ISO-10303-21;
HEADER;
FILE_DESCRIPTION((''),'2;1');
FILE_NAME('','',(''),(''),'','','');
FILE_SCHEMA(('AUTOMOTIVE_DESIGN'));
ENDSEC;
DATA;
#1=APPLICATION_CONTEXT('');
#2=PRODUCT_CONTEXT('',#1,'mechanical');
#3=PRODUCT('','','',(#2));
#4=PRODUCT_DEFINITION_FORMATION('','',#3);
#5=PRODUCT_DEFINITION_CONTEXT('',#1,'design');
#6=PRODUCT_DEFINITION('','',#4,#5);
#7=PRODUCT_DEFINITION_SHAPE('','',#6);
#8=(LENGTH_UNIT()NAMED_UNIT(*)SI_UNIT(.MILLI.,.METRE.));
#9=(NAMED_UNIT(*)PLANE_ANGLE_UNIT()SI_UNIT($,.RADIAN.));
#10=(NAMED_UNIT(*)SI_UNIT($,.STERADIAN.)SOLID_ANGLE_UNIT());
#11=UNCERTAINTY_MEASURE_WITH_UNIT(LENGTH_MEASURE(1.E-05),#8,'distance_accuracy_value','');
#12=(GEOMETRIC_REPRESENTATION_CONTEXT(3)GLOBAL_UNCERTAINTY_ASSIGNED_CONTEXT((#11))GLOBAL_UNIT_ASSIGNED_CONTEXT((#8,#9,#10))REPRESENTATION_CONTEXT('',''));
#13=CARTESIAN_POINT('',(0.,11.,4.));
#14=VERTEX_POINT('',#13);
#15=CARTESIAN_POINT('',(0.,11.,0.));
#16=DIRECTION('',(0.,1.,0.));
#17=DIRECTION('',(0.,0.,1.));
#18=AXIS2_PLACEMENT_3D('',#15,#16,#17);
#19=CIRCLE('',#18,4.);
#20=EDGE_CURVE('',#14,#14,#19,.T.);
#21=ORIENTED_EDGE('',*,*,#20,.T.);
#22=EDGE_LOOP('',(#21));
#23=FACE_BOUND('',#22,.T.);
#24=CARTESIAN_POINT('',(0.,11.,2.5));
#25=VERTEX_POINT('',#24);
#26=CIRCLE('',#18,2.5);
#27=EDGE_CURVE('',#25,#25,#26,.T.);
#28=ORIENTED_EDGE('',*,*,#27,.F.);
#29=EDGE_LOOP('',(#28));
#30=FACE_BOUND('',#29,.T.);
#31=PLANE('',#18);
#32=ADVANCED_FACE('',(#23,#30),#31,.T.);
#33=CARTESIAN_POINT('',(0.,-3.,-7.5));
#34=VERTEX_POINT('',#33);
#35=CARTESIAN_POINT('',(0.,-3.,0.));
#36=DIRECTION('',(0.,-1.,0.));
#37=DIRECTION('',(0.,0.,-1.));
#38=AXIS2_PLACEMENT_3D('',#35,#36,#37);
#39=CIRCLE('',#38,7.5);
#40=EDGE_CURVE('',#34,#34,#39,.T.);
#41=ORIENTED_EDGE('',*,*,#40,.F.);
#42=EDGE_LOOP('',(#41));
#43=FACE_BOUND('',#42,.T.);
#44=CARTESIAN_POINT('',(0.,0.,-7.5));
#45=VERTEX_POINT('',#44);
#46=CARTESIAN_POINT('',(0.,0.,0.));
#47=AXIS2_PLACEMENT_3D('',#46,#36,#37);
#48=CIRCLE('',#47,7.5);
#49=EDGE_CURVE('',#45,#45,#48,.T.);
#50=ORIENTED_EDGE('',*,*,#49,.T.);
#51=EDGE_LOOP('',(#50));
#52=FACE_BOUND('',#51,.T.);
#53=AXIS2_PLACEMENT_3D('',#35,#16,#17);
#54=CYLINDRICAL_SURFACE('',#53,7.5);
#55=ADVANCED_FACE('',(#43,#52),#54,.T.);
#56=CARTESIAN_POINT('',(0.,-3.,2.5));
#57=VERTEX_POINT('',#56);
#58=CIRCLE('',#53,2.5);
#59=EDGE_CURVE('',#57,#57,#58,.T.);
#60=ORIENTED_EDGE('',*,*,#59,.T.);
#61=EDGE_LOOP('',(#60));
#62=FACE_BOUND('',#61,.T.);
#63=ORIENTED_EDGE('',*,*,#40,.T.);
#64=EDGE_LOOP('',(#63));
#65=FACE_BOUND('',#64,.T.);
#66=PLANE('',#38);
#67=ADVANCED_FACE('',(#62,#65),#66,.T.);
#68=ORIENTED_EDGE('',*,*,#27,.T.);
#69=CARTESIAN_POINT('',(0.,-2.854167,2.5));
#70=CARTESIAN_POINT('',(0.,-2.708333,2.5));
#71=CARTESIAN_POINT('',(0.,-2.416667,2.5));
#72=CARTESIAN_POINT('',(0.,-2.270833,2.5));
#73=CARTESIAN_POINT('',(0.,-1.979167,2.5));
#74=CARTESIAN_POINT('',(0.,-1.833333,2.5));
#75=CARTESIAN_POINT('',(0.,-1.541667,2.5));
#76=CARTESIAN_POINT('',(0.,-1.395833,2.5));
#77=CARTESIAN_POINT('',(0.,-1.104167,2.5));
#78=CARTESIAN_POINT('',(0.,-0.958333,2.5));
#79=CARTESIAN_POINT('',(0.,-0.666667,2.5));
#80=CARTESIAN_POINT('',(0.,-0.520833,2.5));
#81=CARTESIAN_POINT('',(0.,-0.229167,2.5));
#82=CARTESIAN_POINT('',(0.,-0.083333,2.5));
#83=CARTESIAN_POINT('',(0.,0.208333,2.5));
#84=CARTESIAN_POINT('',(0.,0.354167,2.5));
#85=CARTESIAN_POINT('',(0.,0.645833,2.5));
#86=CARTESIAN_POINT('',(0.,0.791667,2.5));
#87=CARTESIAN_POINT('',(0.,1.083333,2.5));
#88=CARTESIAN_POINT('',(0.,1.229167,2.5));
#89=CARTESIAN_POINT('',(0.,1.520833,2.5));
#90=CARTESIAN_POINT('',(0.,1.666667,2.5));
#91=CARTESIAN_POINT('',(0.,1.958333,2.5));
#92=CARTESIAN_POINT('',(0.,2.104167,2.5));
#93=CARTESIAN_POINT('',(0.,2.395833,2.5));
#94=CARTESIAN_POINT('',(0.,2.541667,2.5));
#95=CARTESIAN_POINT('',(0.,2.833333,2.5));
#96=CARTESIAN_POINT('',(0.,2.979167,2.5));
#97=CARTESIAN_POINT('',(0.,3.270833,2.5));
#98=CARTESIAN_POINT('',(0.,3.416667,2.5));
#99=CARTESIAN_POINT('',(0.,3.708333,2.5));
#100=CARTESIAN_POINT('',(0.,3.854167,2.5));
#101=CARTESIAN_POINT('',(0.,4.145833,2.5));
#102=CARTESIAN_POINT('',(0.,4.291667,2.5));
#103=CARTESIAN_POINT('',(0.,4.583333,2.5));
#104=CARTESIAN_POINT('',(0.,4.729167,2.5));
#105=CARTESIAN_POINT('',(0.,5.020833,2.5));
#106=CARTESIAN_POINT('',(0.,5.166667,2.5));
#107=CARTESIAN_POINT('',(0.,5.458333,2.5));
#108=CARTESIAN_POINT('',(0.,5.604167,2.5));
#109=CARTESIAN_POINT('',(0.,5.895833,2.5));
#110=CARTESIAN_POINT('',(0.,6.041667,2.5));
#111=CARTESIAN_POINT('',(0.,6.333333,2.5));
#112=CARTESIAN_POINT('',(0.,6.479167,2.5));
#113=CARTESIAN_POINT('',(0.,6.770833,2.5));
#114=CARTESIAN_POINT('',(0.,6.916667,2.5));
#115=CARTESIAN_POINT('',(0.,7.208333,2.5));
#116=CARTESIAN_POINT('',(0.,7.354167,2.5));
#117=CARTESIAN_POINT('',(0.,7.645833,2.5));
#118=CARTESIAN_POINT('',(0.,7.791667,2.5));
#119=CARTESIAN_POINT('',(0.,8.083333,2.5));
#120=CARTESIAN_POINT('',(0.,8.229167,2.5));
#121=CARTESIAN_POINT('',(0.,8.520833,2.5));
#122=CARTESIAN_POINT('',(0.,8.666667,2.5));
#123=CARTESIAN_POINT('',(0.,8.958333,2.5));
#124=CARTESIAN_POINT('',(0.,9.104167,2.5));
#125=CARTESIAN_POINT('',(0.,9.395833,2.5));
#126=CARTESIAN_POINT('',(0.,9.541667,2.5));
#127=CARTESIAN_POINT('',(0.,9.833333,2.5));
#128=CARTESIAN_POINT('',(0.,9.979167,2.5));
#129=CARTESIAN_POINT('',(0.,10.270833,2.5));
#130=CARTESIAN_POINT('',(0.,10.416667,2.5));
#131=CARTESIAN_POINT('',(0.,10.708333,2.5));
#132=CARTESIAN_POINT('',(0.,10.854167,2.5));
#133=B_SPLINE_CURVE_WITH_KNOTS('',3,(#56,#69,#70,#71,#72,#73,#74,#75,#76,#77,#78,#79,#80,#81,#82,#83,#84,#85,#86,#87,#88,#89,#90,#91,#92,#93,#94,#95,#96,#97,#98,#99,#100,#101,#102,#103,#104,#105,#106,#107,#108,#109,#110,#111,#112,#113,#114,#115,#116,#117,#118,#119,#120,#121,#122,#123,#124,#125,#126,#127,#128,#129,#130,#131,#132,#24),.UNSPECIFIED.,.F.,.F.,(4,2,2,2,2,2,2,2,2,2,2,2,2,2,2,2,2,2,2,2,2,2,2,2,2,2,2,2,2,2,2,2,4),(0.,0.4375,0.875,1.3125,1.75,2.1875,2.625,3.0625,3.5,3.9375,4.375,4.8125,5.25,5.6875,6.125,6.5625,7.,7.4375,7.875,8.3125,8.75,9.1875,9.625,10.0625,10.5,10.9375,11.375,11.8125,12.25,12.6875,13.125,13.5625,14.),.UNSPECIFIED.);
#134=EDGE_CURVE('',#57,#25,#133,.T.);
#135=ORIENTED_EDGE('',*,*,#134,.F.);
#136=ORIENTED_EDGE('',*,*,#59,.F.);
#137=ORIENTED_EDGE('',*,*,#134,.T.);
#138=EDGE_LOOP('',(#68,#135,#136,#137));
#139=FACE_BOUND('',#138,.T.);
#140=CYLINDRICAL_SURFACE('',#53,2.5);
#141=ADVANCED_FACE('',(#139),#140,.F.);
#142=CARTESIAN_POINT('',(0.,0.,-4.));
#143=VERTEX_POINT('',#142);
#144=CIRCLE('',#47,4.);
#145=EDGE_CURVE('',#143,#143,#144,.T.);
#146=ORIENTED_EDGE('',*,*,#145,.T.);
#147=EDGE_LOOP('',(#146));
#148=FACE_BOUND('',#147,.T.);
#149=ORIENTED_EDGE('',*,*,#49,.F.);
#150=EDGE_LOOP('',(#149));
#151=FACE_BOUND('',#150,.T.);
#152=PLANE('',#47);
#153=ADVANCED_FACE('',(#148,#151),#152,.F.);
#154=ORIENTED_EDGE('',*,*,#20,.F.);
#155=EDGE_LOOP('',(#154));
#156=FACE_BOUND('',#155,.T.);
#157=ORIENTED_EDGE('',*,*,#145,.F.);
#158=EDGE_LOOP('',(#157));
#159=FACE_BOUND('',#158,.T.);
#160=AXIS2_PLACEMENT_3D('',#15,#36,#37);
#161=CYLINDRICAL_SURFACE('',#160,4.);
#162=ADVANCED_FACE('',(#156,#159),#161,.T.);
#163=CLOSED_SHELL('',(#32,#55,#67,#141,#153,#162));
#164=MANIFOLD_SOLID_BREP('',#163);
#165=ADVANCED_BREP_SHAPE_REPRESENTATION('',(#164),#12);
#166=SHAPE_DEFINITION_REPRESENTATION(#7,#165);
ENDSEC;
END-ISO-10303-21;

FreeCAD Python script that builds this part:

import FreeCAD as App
import Part
import Sketcher
Q = App.Units.Quantity

doc = App.newDocument("Part")
params = doc.addObject("Spreadsheet::Sheet", "Params")
for row, (alias, value) in enumerate([
    ("sketch1_diameter", "8 mm"),
    ("pad1_length", "11 mm"),
    ("sketch2_diameter", "15 mm"),
    ("pad2_length", "3 mm"),
    ("sketch3_diameter", "5 mm"),
], start=1):
    params.set(f"A{row}", alias)
    params.set(f"B{row}", "=" + value)
    params.setAlias(f"B{row}", alias)

body = doc.addObject("PartDesign::Body", "Body")

# Sketch on XZ plane
sketch1 = doc.addObject("Sketcher::SketchObject", "Sketch")
body.addObject(sketch1)
sketch1.AttachmentSupport = (doc.XZ_Plane, [""])
sketch1.MapMode = "FlatFace"
sketch1.addGeometry(Part.Circle(App.Vector(0, 0, 0), App.Vector(0, 0, 1), 4), False)
sketch1.addConstraint([
    Sketcher.Constraint("Coincident", 0, 3, -1, 1),
    Sketcher.Constraint("Diameter", 0, Q("8 mm")),
])
sketch1.setExpression("Constraints[1]", "Params.sketch1_diameter")
pad1 = doc.addObject("PartDesign::Pad", "Pad")
body.addObject(pad1)
pad1.Profile = sketch1
pad1.setExpression("Length", "Params.pad1_length")
pad1.Reversed = True

# Sketch on XZ plane
sketch2 = doc.addObject("Sketcher::SketchObject", "Sketch001")
body.addObject(sketch2)
sketch2.AttachmentSupport = (doc.XZ_Plane, [""])
sketch2.MapMode = "FlatFace"
sketch2.addGeometry(Part.Circle(App.Vector(0, 0, 0), App.Vector(0, 0, 1), 8), False)
sketch2.addConstraint([
    Sketcher.Constraint("Coincident", 0, 3, -1, 1),
    Sketcher.Constraint("Diameter", 0, Q("15 mm")),
])
sketch2.setExpression("Constraints[1]", "Params.sketch2_diameter")
pad2 = doc.addObject("PartDesign::Pad", "Pad001")
body.addObject(pad2)
pad2.Profile = sketch2
pad2.setExpression("Length", "Params.pad2_length")

# Sketch on XZ plane
sketch3 = doc.addObject("Sketcher::SketchObject", "Sketch002")
body.addObject(sketch3)
sketch3.AttachmentSupport = (doc.XZ_Plane, [""])
sketch3.MapMode = "FlatFace"
sketch3.AttachmentOffset = App.Placement(App.Vector(0, 0, -11), App.Rotation())
sketch3.addGeometry(Part.Circle(App.Vector(0, 0, 0), App.Vector(0, 0, 1), 2.5), False)
sketch3.addConstraint([
    Sketcher.Constraint("Coincident", 0, 3, -1, 1),
    Sketcher.Constraint("Diameter", 0, Q("5 mm")),
])
sketch3.setExpression("Constraints[1]", "Params.sketch3_diameter")
pocket1 = doc.addObject("PartDesign::Pocket", "Pocket")
body.addObject(pocket1)
pocket1.Profile = sketch3
pocket1.Type = "ThroughAll"
pocket1.Reversed = True

doc.recompute()
